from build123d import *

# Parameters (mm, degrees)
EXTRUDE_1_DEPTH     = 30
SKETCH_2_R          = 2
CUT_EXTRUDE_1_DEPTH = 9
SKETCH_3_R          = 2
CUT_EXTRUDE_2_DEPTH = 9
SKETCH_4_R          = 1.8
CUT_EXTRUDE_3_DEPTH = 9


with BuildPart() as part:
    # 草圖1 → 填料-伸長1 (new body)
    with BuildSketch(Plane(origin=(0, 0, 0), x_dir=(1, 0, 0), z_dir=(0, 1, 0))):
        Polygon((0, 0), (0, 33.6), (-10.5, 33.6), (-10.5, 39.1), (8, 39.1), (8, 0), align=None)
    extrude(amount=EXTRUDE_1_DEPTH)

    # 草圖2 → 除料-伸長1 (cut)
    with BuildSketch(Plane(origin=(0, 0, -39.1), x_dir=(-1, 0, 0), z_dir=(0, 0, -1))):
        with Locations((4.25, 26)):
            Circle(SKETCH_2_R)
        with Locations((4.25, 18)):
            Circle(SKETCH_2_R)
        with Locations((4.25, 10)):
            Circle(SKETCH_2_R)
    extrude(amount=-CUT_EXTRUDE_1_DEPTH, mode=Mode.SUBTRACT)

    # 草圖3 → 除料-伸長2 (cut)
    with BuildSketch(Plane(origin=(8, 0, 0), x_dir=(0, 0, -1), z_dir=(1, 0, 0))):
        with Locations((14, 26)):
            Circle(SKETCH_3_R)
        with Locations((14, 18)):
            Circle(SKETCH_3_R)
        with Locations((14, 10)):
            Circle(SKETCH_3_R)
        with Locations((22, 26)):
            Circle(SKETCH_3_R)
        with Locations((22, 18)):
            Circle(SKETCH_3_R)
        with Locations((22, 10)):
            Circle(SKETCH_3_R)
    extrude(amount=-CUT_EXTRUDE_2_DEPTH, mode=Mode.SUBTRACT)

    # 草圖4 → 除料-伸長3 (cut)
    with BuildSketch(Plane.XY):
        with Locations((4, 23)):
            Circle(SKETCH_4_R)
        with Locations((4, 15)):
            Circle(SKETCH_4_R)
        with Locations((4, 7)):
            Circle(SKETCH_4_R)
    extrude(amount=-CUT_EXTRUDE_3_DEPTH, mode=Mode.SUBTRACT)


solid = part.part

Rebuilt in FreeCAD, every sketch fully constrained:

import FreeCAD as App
import Part
import Sketcher
from FreeCAD import Vector

doc = App.newDocument("Part")
body = doc.addObject("PartDesign::Body", "Body")

sketch1 = body.newObject("Sketcher::SketchObject", "Sketch")
sketch1.AttachmentSupport = (doc.getObject("XZ_Plane"), [""])
sketch1.MapMode = "FlatFace"
sketch1.addGeometry([
    Part.LineSegment(Vector(0, -33.6, 0), Vector(0, 0, 0)),
    Part.LineSegment(Vector(0, 0, 0), Vector(8, 0, 0)),
    Part.LineSegment(Vector(8, 0, 0), Vector(8, -39.1, 0)),
    Part.LineSegment(Vector(8, -39.1, 0), Vector(-10.5, -39.1, 0)),
    Part.LineSegment(Vector(-10.5, -39.1, 0), Vector(-10.5, -33.6, 0)),
    Part.LineSegment(Vector(-10.5, -33.6, 0), Vector(0, -33.6, 0)),
], False)
sketch1.addConstraint([
    Sketcher.Constraint("Coincident", 0, 2, 1, 1),
    Sketcher.Constraint("Coincident", 1, 2, 2, 1),
    Sketcher.Constraint("Coincident", 2, 2, 3, 1),
    Sketcher.Constraint("Coincident", 3, 2, 4, 1),
    Sketcher.Constraint("Coincident", 4, 2, 5, 1),
    Sketcher.Constraint("Coincident", 5, 2, 0, 1),
    Sketcher.Constraint("Vertical", 0),
    Sketcher.Constraint("Horizontal", 1),
    Sketcher.Constraint("Vertical", 2),
    Sketcher.Constraint("Horizontal", 3),
    Sketcher.Constraint("Vertical", 4),
    Sketcher.Constraint("Horizontal", 5),
    Sketcher.Constraint("Coincident", 0, 2, -1, 1),
    Sketcher.Constraint("DistanceX", 1, 1, 1, 2, 8.0),
    Sketcher.Constraint("DistanceX", 3, 2, 3, 1, 18.5),
    Sketcher.Constraint("DistanceY", 0, 1, 0, 2, 33.6),
    Sketcher.Constraint("DistanceY", 2, 2, 2, 1, 39.1),
])
pad1 = body.newObject("PartDesign::Pad", "Pad")
pad1.Profile = sketch1
pad1.Length = 30
pad1.Reversed = True

sketch2 = body.newObject("Sketcher::SketchObject", "Sketch001")
sketch2.AttachmentSupport = (doc.getObject("XY_Plane"), [""])
sketch2.MapMode = "FlatFace"
sketch2.AttachmentOffset = App.Placement(Vector(0, 0, -39.1), App.Rotation())
sketch2.addGeometry([
    Part.Circle(Vector(-4.25, 26, 0), Vector(0, 0, 1), 2),
    Part.Circle(Vector(-4.25, 18, 0), Vector(0, 0, 1), 2),
    Part.Circle(Vector(-4.25, 10, 0), Vector(0, 0, 1), 2),
], False)
sketch2.addConstraint([
    Sketcher.Constraint("Equal", 0, 1),
    Sketcher.Constraint("Equal", 1, 2),
    Sketcher.Constraint("Vertical", 0, 3, 1, 3),
    Sketcher.Constraint("Vertical", 1, 3, 2, 3),
    Sketcher.Constraint("Diameter", 0, 4.0),
    Sketcher.Constraint("DistanceY", -1, 1, 0, 3, 26.0),
    Sketcher.Constraint("DistanceY", -1, 1, 1, 3, 18.0),
    Sketcher.Constraint("DistanceY", -1, 1, 2, 3, 10.0),
    Sketcher.Constraint("DistanceX", 0, 3, -1, 1, 4.25),
])
pocket1 = body.newObject("PartDesign::Pocket", "Pocket")
pocket1.Profile = sketch2
pocket1.Length = 9
pocket1.Reversed = True

sketch3 = body.newObject("Sketcher::SketchObject", "Sketch002")
sketch3.AttachmentSupport = (doc.getObject("YZ_Plane"), [""])
sketch3.MapMode = "FlatFace"
sketch3.AttachmentOffset = App.Placement(Vector(0, 0, 8), App.Rotation())
sketch3.addGeometry([
    Part.Circle(Vector(26, -14, 0), Vector(0, 0, 1), 2),
    Part.Circle(Vector(18, -14, 0), Vector(0, 0, 1), 2),
    Part.Circle(Vector(10, -14, 0), Vector(0, 0, 1), 2),
    Part.Circle(Vector(26, -22, 0), Vector(0, 0, 1), 2),
    Part.Circle(Vector(18, -22, 0), Vector(0, 0, 1), 2),
    Part.Circle(Vector(10, -22, 0), Vector(0, 0, 1), 2),
], False)
sketch3.addConstraint([
    Sketcher.Constraint("Equal", 0, 1),
    Sketcher.Constraint("Equal", 1, 2),
    Sketcher.Constraint("Equal", 2, 3),
    Sketcher.Constraint("Equal", 3, 4),
    Sketcher.Constraint("Equal", 4, 5),
    Sketcher.Constraint("Horizontal", 0, 3, 1, 3),
    Sketcher.Constraint("Horizontal", 1, 3, 2, 3),
    Sketcher.Constraint("Horizontal", 3, 3, 4, 3),
    Sketcher.Constraint("Horizontal", 4, 3, 5, 3),
    Sketcher.Constraint("Vertical", 0, 3, 3, 3),
    Sketcher.Constraint("Vertical", 1, 3, 4, 3),
    Sketcher.Constraint("Vertical", 2, 3, 5, 3),
    Sketcher.Constraint("Diameter", 0, 4.0),
    Sketcher.Constraint("DistanceX", -1, 1, 0, 3, 26.0),
    Sketcher.Constraint("DistanceY", 0, 3, -1, 1, 14.0),
    Sketcher.Constraint("DistanceX", -1, 1, 1, 3, 18.0),
    Sketcher.Constraint("DistanceX", -1, 1, 2, 3, 10.0),
    Sketcher.Constraint("DistanceY", 3, 3, -1, 1, 22.0),
])
pocket2 = body.newObject("PartDesign::Pocket", "Pocket001")
pocket2.Profile = sketch3
pocket2.Length = 9

sketch4 = body.newObject("Sketcher::SketchObject", "Sketch003")
sketch4.AttachmentSupport = (doc.getObject("XY_Plane"), [""])
sketch4.MapMode = "FlatFace"
sketch4.addGeometry([
    Part.Circle(Vector(4, 23, 0), Vector(0, 0, 1), 1.8),
    Part.Circle(Vector(4, 15, 0), Vector(0, 0, 1), 1.8),
    Part.Circle(Vector(4, 7, 0), Vector(0, 0, 1), 1.8),
], False)
sketch4.addConstraint([
    Sketcher.Constraint("Equal", 0, 1),
    Sketcher.Constraint("Equal", 1, 2),
    Sketcher.Constraint("Vertical", 0, 3, 1, 3),
    Sketcher.Constraint("Vertical", 1, 3, 2, 3),
    Sketcher.Constraint("Diameter", 0, 3.6),
    Sketcher.Constraint("DistanceX", -1, 1, 0, 3, 4.0),
    Sketcher.Constraint("DistanceY", -1, 1, 0, 3, 23.0),
    Sketcher.Constraint("DistanceY", -1, 1, 1, 3, 15.0),
    Sketcher.Constraint("DistanceY", -1, 1, 2, 3, 7.0),
])
pocket3 = body.newObject("PartDesign::Pocket", "Pocket002")
pocket3.Profile = sketch4
pocket3.Length = 9

doc.recompute()
